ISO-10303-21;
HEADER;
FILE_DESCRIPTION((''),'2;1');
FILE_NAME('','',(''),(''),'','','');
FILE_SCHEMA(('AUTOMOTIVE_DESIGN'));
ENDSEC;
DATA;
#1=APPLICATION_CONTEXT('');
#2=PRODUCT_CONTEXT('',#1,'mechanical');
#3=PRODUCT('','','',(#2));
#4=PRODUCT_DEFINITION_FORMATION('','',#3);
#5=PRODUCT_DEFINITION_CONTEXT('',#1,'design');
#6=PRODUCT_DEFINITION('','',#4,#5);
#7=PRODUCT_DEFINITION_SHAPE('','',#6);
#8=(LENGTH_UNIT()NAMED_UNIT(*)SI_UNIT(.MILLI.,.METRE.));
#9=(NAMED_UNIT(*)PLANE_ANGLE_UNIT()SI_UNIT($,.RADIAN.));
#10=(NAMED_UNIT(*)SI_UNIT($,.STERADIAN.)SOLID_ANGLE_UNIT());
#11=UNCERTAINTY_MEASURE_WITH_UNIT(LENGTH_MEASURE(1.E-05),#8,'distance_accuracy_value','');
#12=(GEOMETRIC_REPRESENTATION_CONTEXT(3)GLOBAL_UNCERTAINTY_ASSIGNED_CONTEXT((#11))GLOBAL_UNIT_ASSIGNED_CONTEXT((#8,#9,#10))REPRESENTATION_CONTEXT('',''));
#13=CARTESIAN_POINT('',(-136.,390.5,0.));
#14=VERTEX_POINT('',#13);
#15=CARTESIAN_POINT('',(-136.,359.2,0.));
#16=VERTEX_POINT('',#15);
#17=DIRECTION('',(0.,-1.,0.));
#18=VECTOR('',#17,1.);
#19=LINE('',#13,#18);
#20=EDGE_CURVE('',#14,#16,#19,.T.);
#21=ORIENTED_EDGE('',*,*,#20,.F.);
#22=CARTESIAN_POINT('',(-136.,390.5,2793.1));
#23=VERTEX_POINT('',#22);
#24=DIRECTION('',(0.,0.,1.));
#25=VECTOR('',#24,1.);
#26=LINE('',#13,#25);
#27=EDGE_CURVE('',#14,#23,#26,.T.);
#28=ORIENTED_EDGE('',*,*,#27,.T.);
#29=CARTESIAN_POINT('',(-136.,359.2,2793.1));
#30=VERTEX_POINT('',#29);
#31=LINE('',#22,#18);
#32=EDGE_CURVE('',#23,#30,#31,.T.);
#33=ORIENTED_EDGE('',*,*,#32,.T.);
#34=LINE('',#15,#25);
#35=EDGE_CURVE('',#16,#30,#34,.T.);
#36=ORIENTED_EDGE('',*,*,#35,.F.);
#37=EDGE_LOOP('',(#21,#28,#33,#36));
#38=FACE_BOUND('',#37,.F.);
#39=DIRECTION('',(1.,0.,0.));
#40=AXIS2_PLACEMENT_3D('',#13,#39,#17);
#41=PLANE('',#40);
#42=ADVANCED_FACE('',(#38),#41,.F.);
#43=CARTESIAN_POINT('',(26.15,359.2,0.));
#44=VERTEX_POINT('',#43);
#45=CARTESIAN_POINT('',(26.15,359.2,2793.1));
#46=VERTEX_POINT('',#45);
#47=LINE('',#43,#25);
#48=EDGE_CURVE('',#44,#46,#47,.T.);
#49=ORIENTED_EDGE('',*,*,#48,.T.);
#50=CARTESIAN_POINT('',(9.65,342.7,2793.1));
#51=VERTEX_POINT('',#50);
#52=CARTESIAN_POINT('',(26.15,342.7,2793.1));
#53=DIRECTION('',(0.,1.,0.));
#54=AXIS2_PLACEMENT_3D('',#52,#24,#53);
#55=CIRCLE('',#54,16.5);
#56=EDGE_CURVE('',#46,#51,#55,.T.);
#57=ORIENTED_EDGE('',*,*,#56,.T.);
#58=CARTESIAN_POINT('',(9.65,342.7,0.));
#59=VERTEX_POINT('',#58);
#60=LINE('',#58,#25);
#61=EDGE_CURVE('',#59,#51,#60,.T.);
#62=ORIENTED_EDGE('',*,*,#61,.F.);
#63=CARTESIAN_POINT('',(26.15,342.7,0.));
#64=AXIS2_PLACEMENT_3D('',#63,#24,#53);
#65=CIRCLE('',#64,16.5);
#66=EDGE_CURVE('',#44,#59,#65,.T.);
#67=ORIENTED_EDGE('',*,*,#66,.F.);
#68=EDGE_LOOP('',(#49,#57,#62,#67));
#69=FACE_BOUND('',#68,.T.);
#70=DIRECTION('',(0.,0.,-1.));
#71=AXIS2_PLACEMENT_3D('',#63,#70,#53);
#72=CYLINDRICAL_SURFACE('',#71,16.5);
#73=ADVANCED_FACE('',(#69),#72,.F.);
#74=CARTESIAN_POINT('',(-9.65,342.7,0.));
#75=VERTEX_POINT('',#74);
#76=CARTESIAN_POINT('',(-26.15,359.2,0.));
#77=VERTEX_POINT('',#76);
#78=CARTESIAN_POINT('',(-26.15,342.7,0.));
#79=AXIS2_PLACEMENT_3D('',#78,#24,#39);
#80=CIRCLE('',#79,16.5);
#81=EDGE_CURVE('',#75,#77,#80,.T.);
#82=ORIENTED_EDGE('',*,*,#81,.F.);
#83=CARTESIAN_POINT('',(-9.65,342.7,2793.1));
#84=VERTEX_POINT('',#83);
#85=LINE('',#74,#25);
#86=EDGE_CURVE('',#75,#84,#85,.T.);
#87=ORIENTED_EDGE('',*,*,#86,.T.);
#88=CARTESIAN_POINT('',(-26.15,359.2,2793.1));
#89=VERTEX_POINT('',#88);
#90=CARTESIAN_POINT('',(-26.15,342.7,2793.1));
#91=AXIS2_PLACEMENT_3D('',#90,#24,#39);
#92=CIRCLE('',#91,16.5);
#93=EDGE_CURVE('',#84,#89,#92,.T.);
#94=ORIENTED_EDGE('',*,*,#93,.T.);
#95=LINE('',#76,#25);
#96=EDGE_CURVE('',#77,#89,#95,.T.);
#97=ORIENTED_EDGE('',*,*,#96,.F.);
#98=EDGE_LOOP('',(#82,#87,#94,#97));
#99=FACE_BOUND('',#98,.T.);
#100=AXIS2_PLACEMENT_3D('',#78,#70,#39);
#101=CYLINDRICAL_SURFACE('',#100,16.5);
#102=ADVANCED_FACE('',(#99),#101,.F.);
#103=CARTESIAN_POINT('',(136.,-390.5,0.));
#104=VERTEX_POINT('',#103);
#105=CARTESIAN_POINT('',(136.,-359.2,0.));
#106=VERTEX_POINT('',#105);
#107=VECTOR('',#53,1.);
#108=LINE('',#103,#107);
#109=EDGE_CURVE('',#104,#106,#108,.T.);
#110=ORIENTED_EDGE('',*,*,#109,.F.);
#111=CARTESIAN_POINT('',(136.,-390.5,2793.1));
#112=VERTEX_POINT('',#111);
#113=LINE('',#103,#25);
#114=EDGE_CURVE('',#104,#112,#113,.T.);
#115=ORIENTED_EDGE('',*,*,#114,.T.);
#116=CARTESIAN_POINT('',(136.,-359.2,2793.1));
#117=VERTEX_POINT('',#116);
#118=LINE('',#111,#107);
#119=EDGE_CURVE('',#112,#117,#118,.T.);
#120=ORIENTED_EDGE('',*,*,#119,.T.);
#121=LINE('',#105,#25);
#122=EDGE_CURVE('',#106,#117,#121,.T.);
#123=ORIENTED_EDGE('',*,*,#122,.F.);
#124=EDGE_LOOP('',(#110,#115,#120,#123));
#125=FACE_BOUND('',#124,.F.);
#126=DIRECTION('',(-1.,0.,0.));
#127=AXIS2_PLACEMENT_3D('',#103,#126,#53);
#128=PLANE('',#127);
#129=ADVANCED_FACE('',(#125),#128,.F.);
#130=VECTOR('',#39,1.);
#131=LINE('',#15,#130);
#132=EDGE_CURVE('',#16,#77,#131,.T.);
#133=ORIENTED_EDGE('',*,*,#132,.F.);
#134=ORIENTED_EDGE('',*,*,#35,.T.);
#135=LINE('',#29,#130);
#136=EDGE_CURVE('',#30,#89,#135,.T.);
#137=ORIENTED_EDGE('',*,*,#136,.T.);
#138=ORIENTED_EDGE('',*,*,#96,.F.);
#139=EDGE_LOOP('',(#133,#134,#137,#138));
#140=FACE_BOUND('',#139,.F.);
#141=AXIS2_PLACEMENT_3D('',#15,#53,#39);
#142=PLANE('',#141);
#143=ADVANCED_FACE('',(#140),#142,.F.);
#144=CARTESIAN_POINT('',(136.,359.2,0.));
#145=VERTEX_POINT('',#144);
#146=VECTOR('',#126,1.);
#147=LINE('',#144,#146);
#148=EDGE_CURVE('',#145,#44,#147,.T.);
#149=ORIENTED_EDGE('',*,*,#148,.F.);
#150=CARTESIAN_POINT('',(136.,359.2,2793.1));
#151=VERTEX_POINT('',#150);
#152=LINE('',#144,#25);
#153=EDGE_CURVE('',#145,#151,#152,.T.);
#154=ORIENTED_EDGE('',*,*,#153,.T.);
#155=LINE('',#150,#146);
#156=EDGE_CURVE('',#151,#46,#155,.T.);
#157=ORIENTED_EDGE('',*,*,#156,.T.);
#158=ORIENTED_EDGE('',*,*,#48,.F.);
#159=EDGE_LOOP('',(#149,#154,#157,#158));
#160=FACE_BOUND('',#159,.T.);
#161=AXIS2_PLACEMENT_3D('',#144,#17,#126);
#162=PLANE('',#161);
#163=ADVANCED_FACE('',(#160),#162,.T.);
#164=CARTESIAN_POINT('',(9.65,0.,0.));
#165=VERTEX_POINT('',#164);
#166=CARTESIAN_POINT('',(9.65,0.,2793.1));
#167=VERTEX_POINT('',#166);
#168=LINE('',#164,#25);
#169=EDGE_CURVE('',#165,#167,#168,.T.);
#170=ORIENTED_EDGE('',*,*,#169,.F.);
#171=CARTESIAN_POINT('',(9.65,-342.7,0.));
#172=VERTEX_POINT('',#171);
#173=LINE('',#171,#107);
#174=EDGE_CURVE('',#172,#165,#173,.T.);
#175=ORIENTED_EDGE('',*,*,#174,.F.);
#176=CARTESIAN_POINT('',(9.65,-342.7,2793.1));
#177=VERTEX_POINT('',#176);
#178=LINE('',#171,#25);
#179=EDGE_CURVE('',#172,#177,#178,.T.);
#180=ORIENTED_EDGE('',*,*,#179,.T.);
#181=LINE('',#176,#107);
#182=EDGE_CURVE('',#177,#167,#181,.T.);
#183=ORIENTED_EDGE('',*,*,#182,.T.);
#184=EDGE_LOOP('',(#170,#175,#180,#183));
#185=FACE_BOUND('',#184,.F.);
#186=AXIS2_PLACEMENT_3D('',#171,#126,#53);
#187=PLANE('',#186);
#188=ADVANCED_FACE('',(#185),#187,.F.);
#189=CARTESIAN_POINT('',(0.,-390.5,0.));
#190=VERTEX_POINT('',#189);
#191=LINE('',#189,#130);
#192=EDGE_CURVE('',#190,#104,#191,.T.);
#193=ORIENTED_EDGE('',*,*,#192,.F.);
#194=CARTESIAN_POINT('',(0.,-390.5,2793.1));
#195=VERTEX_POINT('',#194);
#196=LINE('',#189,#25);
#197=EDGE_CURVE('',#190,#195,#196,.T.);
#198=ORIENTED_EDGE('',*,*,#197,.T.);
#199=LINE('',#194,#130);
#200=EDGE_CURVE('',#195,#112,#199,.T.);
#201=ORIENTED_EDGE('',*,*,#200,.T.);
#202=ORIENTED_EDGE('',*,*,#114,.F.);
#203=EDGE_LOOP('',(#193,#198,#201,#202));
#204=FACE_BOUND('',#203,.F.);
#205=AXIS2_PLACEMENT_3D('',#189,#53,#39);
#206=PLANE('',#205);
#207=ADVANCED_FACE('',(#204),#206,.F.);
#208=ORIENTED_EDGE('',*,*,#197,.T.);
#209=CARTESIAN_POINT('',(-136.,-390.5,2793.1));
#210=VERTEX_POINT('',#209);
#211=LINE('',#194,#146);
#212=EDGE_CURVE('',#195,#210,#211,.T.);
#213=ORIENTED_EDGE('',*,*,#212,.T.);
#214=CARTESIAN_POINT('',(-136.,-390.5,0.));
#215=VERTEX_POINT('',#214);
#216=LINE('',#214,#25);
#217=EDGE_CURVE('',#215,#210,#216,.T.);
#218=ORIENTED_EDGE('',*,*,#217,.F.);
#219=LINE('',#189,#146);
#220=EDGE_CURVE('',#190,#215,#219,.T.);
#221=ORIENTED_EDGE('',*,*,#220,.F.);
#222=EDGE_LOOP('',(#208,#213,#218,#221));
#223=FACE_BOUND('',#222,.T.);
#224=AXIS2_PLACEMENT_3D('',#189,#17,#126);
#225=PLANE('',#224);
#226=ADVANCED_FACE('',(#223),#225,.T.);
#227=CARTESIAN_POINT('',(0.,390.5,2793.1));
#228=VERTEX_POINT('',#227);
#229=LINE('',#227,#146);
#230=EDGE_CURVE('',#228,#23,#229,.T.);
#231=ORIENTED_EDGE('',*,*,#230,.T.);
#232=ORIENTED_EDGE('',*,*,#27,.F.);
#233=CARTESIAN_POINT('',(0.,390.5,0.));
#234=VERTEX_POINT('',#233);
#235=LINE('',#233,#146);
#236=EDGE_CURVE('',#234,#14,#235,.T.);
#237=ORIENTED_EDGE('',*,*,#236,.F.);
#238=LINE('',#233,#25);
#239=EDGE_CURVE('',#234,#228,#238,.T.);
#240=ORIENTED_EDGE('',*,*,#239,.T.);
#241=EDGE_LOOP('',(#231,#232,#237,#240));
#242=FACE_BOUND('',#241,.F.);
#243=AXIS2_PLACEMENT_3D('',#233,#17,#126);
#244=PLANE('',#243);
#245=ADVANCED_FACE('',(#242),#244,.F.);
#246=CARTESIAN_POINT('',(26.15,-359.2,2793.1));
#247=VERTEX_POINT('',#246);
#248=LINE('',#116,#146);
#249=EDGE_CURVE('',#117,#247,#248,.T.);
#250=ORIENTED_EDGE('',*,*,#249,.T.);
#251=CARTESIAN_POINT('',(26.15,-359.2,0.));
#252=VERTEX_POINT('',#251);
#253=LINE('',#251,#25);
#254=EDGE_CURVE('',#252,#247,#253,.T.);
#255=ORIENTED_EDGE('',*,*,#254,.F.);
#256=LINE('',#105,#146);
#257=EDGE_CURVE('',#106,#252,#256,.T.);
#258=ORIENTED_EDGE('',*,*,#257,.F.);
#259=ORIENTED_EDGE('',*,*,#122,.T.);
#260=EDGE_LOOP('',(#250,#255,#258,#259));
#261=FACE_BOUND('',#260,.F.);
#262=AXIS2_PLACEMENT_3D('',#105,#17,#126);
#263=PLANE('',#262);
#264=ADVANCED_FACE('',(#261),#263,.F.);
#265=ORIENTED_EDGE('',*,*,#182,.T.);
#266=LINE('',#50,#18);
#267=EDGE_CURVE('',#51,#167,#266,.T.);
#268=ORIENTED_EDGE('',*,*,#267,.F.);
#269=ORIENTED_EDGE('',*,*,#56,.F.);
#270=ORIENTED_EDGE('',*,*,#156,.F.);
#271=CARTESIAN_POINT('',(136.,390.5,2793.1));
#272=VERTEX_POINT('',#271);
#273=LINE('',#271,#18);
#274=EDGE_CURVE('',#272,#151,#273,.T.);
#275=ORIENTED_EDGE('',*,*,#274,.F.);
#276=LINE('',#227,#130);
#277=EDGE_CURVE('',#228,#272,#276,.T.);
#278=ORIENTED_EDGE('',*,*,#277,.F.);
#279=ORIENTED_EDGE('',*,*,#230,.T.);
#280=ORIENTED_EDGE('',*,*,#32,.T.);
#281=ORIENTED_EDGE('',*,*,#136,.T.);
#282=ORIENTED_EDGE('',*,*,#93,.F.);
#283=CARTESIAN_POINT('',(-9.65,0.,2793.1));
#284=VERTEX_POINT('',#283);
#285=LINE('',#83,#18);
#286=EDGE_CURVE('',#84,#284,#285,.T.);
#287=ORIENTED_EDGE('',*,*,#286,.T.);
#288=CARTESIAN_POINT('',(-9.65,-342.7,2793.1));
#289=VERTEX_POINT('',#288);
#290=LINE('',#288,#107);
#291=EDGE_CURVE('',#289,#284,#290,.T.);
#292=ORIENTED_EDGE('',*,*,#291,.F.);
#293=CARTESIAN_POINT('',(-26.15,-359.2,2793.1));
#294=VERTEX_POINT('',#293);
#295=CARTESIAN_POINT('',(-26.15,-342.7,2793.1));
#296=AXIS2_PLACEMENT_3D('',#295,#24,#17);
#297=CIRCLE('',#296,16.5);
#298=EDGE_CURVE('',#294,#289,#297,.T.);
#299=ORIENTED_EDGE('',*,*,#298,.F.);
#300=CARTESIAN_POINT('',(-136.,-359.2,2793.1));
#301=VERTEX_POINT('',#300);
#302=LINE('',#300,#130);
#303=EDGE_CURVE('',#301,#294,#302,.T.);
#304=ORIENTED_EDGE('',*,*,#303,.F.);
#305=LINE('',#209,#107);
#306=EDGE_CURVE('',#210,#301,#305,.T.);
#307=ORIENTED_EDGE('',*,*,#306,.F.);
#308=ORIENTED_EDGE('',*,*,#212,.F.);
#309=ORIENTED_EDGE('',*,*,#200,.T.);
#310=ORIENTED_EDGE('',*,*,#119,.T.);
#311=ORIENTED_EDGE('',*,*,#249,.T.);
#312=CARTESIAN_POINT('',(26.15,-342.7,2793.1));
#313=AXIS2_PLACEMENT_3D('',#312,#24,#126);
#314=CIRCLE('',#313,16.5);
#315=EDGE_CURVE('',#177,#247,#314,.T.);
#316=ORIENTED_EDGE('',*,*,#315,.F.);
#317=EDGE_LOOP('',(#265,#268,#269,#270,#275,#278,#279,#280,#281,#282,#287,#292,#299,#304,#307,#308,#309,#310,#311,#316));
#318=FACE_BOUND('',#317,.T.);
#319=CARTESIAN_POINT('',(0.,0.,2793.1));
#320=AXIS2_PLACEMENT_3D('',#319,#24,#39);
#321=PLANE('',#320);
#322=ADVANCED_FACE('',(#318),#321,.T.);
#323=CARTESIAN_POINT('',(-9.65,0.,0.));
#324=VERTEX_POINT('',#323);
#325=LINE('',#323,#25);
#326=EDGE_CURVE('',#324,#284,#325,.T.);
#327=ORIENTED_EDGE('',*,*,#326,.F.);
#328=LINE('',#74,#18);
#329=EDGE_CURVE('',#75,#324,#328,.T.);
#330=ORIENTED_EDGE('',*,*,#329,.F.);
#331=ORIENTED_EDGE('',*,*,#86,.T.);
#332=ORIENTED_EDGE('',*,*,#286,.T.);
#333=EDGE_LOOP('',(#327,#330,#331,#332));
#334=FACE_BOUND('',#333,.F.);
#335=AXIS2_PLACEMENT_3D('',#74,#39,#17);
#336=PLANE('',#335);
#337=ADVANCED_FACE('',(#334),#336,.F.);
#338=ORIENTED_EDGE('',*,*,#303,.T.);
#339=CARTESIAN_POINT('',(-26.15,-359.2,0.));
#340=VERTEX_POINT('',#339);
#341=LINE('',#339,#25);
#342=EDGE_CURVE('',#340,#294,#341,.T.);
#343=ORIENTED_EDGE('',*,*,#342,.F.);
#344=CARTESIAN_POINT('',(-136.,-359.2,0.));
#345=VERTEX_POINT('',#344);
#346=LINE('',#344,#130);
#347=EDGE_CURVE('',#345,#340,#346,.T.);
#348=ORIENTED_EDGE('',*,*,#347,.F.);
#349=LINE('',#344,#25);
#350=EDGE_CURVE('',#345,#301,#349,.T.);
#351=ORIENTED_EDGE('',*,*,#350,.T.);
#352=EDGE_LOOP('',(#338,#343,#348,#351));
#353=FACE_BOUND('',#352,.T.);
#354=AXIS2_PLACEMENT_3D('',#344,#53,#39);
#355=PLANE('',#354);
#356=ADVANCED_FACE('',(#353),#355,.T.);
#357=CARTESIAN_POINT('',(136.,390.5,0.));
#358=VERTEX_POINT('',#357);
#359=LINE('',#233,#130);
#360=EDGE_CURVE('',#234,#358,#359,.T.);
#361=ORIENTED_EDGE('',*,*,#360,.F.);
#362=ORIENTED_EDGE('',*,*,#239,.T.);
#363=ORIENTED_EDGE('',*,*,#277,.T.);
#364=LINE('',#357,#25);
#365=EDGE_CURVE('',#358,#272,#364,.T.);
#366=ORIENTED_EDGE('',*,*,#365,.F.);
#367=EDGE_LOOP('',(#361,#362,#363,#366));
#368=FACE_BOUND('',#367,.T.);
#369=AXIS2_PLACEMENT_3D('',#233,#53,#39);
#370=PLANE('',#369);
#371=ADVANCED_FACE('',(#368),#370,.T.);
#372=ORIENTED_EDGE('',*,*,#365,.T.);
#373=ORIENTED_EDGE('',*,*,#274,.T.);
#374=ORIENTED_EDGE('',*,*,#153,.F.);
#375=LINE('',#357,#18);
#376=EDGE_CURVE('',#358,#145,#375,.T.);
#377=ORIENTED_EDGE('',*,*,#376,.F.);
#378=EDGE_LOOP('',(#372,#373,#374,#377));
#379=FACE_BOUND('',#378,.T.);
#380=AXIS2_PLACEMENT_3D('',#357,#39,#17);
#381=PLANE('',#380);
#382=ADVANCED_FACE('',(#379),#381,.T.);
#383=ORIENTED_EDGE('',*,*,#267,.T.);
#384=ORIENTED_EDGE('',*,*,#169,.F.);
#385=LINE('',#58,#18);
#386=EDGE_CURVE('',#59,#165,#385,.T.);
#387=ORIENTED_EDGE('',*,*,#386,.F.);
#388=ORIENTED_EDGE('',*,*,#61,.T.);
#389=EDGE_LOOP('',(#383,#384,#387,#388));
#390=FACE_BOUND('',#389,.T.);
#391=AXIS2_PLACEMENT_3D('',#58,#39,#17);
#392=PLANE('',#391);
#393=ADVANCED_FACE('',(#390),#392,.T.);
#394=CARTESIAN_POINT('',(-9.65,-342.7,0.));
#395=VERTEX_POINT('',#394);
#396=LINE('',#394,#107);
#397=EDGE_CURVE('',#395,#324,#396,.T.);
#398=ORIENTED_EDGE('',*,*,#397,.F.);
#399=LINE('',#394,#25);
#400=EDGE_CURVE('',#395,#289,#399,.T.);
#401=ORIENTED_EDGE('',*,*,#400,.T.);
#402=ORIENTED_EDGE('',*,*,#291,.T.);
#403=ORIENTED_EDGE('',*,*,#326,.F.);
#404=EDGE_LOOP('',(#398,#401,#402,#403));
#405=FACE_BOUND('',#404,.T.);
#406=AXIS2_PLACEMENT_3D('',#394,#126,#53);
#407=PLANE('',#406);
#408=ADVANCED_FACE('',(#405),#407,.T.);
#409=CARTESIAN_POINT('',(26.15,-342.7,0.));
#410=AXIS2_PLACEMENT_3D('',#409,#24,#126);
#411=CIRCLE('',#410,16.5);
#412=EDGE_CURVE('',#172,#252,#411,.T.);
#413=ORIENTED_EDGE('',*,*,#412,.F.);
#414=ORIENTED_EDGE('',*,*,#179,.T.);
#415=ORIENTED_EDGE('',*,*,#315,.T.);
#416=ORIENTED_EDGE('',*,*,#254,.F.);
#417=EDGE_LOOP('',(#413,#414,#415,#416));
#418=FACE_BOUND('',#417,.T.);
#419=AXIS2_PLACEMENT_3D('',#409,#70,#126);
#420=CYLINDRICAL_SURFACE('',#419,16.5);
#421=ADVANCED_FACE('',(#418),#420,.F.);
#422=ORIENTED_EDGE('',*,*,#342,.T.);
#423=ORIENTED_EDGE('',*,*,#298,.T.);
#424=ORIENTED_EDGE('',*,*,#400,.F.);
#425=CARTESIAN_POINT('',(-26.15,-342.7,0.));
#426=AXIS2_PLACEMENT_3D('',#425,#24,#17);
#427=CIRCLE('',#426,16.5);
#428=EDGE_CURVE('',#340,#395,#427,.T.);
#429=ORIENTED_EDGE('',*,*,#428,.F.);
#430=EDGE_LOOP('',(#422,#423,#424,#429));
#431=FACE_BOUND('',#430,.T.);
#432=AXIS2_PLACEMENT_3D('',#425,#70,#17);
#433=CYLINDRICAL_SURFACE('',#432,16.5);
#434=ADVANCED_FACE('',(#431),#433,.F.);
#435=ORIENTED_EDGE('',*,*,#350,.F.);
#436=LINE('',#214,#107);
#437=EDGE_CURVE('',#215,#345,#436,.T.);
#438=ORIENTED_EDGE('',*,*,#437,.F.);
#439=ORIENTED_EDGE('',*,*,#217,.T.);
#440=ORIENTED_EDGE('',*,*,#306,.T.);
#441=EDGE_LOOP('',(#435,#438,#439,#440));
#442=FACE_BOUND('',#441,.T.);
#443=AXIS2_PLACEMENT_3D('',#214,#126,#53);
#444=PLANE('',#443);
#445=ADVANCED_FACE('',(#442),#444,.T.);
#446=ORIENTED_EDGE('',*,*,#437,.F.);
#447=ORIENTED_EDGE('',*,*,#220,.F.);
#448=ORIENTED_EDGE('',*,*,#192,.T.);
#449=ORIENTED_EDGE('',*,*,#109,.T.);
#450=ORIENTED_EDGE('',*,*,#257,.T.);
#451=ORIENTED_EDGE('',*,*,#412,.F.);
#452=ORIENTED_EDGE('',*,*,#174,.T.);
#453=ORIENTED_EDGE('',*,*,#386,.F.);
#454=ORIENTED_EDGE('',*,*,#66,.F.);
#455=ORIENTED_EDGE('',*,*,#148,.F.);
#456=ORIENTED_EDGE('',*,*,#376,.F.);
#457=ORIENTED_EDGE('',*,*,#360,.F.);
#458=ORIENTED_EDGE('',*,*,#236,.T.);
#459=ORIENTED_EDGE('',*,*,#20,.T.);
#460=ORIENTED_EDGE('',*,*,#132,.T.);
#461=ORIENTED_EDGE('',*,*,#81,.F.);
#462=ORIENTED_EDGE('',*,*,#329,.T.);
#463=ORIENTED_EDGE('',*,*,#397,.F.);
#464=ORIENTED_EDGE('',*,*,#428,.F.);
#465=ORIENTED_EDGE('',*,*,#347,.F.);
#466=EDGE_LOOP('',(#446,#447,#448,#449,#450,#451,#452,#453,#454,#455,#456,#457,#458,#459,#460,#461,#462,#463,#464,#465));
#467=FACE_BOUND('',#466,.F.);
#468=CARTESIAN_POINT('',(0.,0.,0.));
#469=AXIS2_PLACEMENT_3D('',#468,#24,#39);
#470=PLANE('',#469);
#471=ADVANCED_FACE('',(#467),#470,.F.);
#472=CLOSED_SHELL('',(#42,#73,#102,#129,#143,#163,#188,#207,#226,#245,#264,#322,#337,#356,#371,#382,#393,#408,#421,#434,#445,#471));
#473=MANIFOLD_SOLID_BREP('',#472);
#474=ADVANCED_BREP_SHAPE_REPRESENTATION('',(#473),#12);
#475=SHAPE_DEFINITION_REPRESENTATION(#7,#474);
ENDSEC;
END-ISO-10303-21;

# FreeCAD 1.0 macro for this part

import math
import FreeCAD as App
import Part
import Sketcher

V = App.Vector

doc = App.newDocument("Part")
body = doc.addObject("PartDesign::Body", "Body")

# Sketch on XY plane
sketch1 = body.newObject("Sketcher::SketchObject", "Sketch")
sketch1.AttachmentSupport = (doc.getObject("XY_Plane"), [""])
sketch1.MapMode = "FlatFace"
sketch1.addGeometry([
    Part.LineSegment(V(-136, -359, 0), V(-136, -390, 0)),  # 0
    Part.LineSegment(V(-136, -390, 0), V(136, -390, 0)),  # 1
    Part.LineSegment(V(136, -390, 0), V(136, -359, 0)),  # 2
    Part.LineSegment(V(136, -359, 0), V(26, -359, 0)),  # 3
    Part.ArcOfCircle(Part.Circle(V(26, -343, 0), V(0, 0, 1), 16), math.radians(180), math.radians(270)),  # 4
    Part.LineSegment(V(10, -343, 0), V(10, 343, 0)),  # 5
    Part.ArcOfCircle(Part.Circle(V(26, 343, 0), V(0, 0, 1), 16), math.radians(90), math.radians(180)),  # 6
    Part.LineSegment(V(26, 359, 0), V(136, 359, 0)),  # 7
    Part.LineSegment(V(136, 359, 0), V(136, 390, 0)),  # 8
    Part.LineSegment(V(136, 390, 0), V(-136, 390, 0)),  # 9
    Part.LineSegment(V(-136, 390, 0), V(-136, 359, 0)),  # 10
    Part.LineSegment(V(-136, 359, 0), V(-26, 359, 0)),  # 11
    Part.ArcOfCircle(Part.Circle(V(-26, 343, 0), V(0, 0, 1), 16), math.radians(0), math.radians(90)),  # 12
    Part.LineSegment(V(-10, 343, 0), V(-10, -343, 0)),  # 13
    Part.ArcOfCircle(Part.Circle(V(-26, -343, 0), V(0, 0, 1), 16), math.radians(-90), math.radians(0)),  # 14
    Part.LineSegment(V(-26, -359, 0), V(-136, -359, 0)),  # 15
], False)
sketch1.addConstraint([
    Sketcher.Constraint("Coincident", 0, 2, 1, 1),
    Sketcher.Constraint("Coincident", 1, 2, 2, 1),
    Sketcher.Constraint("Coincident", 2, 2, 3, 1),
    Sketcher.Constraint("Tangent", 3, 2, 4, 2),
    Sketcher.Constraint("Tangent", 4, 1, 5, 1),
    Sketcher.Constraint("Tangent", 5, 2, 6, 2),
    Sketcher.Constraint("Tangent", 6, 1, 7, 1),
    Sketcher.Constraint("Coincident", 7, 2, 8, 1),
    Sketcher.Constraint("Coincident", 8, 2, 9, 1),
    Sketcher.Constraint("Coincident", 9, 2, 10, 1),
    Sketcher.Constraint("Coincident", 10, 2, 11, 1),
    Sketcher.Constraint("Tangent", 11, 2, 12, 2),
    Sketcher.Constraint("Tangent", 12, 1, 13, 1),
    Sketcher.Constraint("Tangent", 13, 2, 14, 2),
    Sketcher.Constraint("Tangent", 14, 1, 15, 1),
    Sketcher.Constraint("Coincident", 15, 2, 0, 1),
    Sketcher.Constraint("Vertical", 0),
    Sketcher.Constraint("Horizontal", 1),
    Sketcher.Constraint("Vertical", 2),
    Sketcher.Constraint("Horizontal", 3),
    Sketcher.Constraint("Vertical", 5),
    Sketcher.Constraint("Horizontal", 7),
    Sketcher.Constraint("Vertical", 8),
    Sketcher.Constraint("Horizontal", 9),
    Sketcher.Constraint("Vertical", 10),
    Sketcher.Constraint("Horizontal", 11),
    Sketcher.Constraint("Vertical", 13),
    Sketcher.Constraint("Horizontal", 15),
    Sketcher.Constraint("Equal", 4, 6),
    Sketcher.Constraint("Equal", 6, 12),
    Sketcher.Constraint("Equal", 12, 14),
    Sketcher.Constraint("Symmetric", 4, 3, 12, 3, -1, 1),
    Sketcher.Constraint("Symmetric", 0, 2, 8, 2, -1, 1),
    Sketcher.Constraint("Symmetric", 7, 2, 10, 2, -2),
    Sketcher.Constraint("Symmetric", 2, 2, 15, 2, -2),
    Sketcher.Constraint("Radius", 4, 16.5),
    Sketcher.Constraint("DistanceY", 0, 2, 0, 1, 31.3),
    Sketcher.Constraint("DistanceX", 0, 2, -1, 1, 136.0),
    Sketcher.Constraint("DistanceY", 0, 2, -1, 1, 390.5),
    Sketcher.Constraint("DistanceX", -1, 1, 4, 1, 9.65),
])
pad1 = body.newObject("PartDesign::Pad", "Pad")
pad1.Profile = sketch1
pad1.Length = 2793.1

doc.recompute()
